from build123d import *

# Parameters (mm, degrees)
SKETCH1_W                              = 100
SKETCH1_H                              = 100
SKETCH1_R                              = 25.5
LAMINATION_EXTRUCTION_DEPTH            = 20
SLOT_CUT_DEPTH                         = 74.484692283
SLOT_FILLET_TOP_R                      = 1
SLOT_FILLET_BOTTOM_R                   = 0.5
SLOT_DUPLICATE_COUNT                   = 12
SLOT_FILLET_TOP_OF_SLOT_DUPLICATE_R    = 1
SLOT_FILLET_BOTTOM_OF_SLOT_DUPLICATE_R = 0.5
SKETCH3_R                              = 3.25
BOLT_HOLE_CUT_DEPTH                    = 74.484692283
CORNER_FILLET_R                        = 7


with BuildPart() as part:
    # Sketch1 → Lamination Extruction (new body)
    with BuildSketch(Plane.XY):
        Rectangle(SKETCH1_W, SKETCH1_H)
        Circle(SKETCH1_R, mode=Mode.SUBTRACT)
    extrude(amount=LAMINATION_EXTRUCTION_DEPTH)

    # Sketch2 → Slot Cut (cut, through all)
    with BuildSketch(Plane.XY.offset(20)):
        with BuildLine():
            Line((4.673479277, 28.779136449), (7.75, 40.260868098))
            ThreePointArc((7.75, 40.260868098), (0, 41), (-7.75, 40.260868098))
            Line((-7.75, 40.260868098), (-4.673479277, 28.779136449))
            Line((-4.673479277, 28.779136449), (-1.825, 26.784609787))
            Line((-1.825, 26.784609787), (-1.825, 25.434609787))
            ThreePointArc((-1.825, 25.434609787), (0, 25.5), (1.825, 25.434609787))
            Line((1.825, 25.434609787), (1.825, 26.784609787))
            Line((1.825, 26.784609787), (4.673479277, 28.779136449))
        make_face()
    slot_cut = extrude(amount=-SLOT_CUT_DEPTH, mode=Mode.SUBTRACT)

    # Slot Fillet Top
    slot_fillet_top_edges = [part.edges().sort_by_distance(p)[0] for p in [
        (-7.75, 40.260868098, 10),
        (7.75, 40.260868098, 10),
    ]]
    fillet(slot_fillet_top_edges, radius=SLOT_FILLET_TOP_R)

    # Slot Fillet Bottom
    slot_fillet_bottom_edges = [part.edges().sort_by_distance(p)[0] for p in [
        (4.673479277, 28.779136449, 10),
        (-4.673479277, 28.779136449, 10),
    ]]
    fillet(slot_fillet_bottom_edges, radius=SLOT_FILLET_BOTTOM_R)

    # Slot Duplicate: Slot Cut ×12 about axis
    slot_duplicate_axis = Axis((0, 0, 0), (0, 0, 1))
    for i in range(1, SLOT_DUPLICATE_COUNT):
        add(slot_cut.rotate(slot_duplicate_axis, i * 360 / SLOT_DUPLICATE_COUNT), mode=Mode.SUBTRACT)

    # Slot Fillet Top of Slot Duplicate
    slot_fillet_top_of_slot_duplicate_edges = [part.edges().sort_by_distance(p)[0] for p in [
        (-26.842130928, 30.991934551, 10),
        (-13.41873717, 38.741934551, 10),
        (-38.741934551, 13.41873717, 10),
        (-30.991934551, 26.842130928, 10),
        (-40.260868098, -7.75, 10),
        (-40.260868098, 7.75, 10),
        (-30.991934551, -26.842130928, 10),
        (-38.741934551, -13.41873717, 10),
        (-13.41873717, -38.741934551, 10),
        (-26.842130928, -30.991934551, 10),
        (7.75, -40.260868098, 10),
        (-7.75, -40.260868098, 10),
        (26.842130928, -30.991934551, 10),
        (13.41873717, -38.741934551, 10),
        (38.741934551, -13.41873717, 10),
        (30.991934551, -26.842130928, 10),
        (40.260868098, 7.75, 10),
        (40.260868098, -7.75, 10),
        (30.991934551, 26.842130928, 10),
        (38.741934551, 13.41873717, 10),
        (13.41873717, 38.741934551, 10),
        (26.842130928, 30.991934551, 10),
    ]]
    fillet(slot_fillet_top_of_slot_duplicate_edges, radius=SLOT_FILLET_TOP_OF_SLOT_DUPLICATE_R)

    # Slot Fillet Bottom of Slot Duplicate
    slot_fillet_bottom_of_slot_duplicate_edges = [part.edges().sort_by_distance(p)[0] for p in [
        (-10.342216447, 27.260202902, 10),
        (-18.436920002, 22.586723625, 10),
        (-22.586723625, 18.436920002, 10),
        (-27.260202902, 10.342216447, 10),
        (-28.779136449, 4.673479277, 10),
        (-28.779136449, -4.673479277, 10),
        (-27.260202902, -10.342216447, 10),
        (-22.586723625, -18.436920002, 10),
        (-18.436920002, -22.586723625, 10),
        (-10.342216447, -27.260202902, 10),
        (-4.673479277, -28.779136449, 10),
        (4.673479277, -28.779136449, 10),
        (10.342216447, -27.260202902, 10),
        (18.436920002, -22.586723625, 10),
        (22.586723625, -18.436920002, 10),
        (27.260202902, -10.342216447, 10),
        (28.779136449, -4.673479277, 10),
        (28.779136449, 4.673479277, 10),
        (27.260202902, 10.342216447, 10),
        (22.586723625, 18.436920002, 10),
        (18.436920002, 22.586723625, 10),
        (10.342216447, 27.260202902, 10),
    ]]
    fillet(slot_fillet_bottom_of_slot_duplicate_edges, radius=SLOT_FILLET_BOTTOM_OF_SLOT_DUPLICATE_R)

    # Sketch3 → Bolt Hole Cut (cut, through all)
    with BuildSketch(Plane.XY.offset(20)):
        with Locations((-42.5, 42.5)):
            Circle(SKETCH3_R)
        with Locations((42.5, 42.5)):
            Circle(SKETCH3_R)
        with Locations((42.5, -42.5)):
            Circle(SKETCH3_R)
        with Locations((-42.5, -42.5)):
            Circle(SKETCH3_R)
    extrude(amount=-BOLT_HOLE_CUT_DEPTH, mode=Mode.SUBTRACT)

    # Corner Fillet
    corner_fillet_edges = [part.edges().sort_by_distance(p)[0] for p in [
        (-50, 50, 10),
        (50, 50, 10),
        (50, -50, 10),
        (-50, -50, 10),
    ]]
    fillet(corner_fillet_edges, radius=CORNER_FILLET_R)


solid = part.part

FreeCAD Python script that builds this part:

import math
import FreeCAD as App
import Part
import Sketcher
from FreeCAD import Vector
Q = App.Units.Quantity


def edges_at(feature, points):
    """Names of the edges that pass closest to the given points."""
    edges = feature.Shape.Edges
    near = lambda p: min(range(len(edges)), key=lambda i: edges[i].distToShape(Part.Vertex(*p))[0])
    return sorted({f"Edge{near(p) + 1}" for p in points})

doc = App.newDocument("Part")
body = doc.addObject("PartDesign::Body", "Body")

# Sketch on XY plane
sketch1 = body.newObject("Sketcher::SketchObject", "Sketch")
sketch1.AttachmentSupport = (doc.getObject("XY_Plane"), [""])
sketch1.MapMode = "FlatFace"
sketch1.addGeometry([
    Part.LineSegment(Vector(-50, 50, 0), Vector(-50, -50, 0)),  # 0
    Part.LineSegment(Vector(-50, -50, 0), Vector(50, -50, 0)),  # 1
    Part.LineSegment(Vector(50, -50, 0), Vector(50, 50, 0)),  # 2
    Part.LineSegment(Vector(50, 50, 0), Vector(-50, 50, 0)),  # 3
    Part.Circle(Vector(0, 0, 0), Vector(0, 0, 1), 26),  # 4
], False)
sketch1.addConstraint([
    Sketcher.Constraint("Coincident", 0, 2, 1, 1),
    Sketcher.Constraint("Coincident", 1, 2, 2, 1),
    Sketcher.Constraint("Coincident", 2, 2, 3, 1),
    Sketcher.Constraint("Coincident", 3, 2, 0, 1),
    Sketcher.Constraint("Vertical", 0),
    Sketcher.Constraint("Horizontal", 1),
    Sketcher.Constraint("Vertical", 2),
    Sketcher.Constraint("Horizontal", 3),
    Sketcher.Constraint("Coincident", 4, 3, -1, 1),
    Sketcher.Constraint("Symmetric", 0, 2, 2, 2, -1, 1),
    Sketcher.Constraint("Equal", 3, 0),
    Sketcher.Constraint("Diameter", 4, Q("51 mm")),
    Sketcher.Constraint("DistanceX", 1, 1, 1, 2, Q("100 mm")),
])
pad1 = body.newObject("PartDesign::Pad", "Pad")
pad1.Profile = sketch1
pad1.Length = 20

# Sketch on XY plane
sketch2 = body.newObject("Sketcher::SketchObject", "Sketch001")
sketch2.AttachmentSupport = (doc.getObject("XY_Plane"), [""])
sketch2.MapMode = "FlatFace"
sketch2.AttachmentOffset = App.Placement(Vector(0, 0, 20), App.Rotation())
sketch2.addGeometry([
    Part.LineSegment(Vector(4.7, 28.8, 0), Vector(7.8, 40.3, 0)),  # 0
    Part.ArcOfCircle(Part.Circle(Vector(0, 0, 0), Vector(0, 0, 1), 41), math.radians(79), math.radians(101)),  # 1
    Part.LineSegment(Vector(-7.8, 40.3, 0), Vector(-4.7, 28.8, 0)),  # 2
    Part.LineSegment(Vector(-4.7, 28.8, 0), Vector(-1.8, 26.8, 0)),  # 3
    Part.LineSegment(Vector(-1.8, 26.8, 0), Vector(-1.8, 25.4, 0)),  # 4
    Part.ArcOfCircle(Part.Circle(Vector(0, 0, 0), Vector(0, 0, 1), 25.5), math.radians(85.9), math.radians(94.1)),  # 5
    Part.LineSegment(Vector(1.8, 25.4, 0), Vector(1.8, 26.8, 0)),  # 6
    Part.LineSegment(Vector(1.8, 26.8, 0), Vector(4.7, 28.8, 0)),  # 7
], False)
sketch2.addConstraint([
    Sketcher.Constraint("Coincident", 0, 2, 1, 1),
    Sketcher.Constraint("Coincident", 1, 2, 2, 1),
    Sketcher.Constraint("Coincident", 2, 2, 3, 1),
    Sketcher.Constraint("Coincident", 3, 2, 4, 1),
    Sketcher.Constraint("Coincident", 4, 2, 5, 2),
    Sketcher.Constraint("Coincident", 5, 1, 6, 1),
    Sketcher.Constraint("Coincident", 6, 2, 7, 1),
    Sketcher.Constraint("Coincident", 7, 2, 0, 1),
    Sketcher.Constraint("Vertical", 4),
    Sketcher.Constraint("Vertical", 6),
    Sketcher.Constraint("Coincident", 1, 3, -1, 1),
    Sketcher.Constraint("Coincident", 5, 3, -1, 1),
    Sketcher.Constraint("Symmetric", 3, 2, 6, 2, -2),
    Sketcher.Constraint("Symmetric", 2, 2, 7, 2, -2),
    Sketcher.Constraint("Horizontal", 0, 2, 1, 2),
    Sketcher.Constraint("Radius", 1, Q("41 mm")),
    Sketcher.Constraint("Radius", 5, Q("25.5 mm")),
    Sketcher.Constraint("Angle", 0, Q("75 deg")),
    Sketcher.Constraint("Angle", 3, Q("-35 deg")),
    Sketcher.Constraint("DistanceY", 4, 2, 4, 1, Q("1.35 mm")),
    Sketcher.Constraint("DistanceX", 1, 2, 0, 2, Q("15.5 mm")),
    Sketcher.Constraint("DistanceX", 4, 2, 5, 1, Q("3.65 mm")),
])
pocket1 = body.newObject("PartDesign::Pocket", "Pocket")
pocket1.Profile = sketch2
pocket1.Type = "ThroughAll"
doc.recompute()

fillet = body.newObject("PartDesign::Fillet", "Fillet")
fillet.Base = (pocket1, edges_at(pocket1, [(-7.75, 40.261, 10), (7.75, 40.261, 10)]))
fillet.Radius = 1
doc.recompute()

fillet2 = body.newObject("PartDesign::Fillet", "Fillet001")
fillet2.Base = (fillet, edges_at(fillet, [(4.673, 28.779, 10), (-4.673, 28.779, 10)]))
fillet2.Radius = 0.5
doc.recompute()

polarpattern = body.newObject("PartDesign::PolarPattern", "PolarPattern")
polarpattern.Originals = [pocket1]
polarpattern.Axis = (doc.getObject("Z_Axis"), [""])
polarpattern.Angle = 360
polarpattern.Occurrences = 12
body.Tip = polarpattern
doc.recompute()

fillet3 = body.newObject("PartDesign::Fillet", "Fillet002")
fillet3.Base = (polarpattern, edges_at(polarpattern, [
    (-26.842, 30.992, 10),
    (-13.419, 38.742, 10),
    (-38.742, 13.419, 10),
    (-30.992, 26.842, 10),
    (-40.261, -7.75, 10),
    (-40.261, 7.75, 10),
    (-30.992, -26.842, 10),
    (-38.742, -13.419, 10),
    (-13.419, -38.742, 10),
    (-26.842, -30.992, 10),
    (7.75, -40.261, 10),
    (-7.75, -40.261, 10),
    (26.842, -30.992, 10),
    (13.419, -38.742, 10),
    (38.742, -13.419, 10),
    (30.992, -26.842, 10),
    (40.261, 7.75, 10),
    (40.261, -7.75, 10),
    (30.992, 26.842, 10),
    (38.742, 13.419, 10),
    (13.419, 38.742, 10),
    (26.842, 30.992, 10),
]))
fillet3.Radius = 1
doc.recompute()

fillet4 = body.newObject("PartDesign::Fillet", "Fillet003")
fillet4.Base = (fillet3, edges_at(fillet3, [
    (-10.342, 27.26, 10),
    (-18.437, 22.587, 10),
    (-22.587, 18.437, 10),
    (-27.26, 10.342, 10),
    (-28.779, 4.673, 10),
    (-28.779, -4.673, 10),
    (-27.26, -10.342, 10),
    (-22.587, -18.437, 10),
    (-18.437, -22.587, 10),
    (-10.342, -27.26, 10),
    (-4.673, -28.779, 10),
    (4.673, -28.779, 10),
    (10.342, -27.26, 10),
    (18.437, -22.587, 10),
    (22.587, -18.437, 10),
    (27.26, -10.342, 10),
    (28.779, -4.673, 10),
    (28.779, 4.673, 10),
    (27.26, 10.342, 10),
    (22.587, 18.437, 10),
    (18.437, 22.587, 10),
    (10.342, 27.26, 10),
]))
fillet4.Radius = 0.5

# Sketch on XY plane
sketch3 = body.newObject("Sketcher::SketchObject", "Sketch002")
sketch3.AttachmentSupport = (doc.getObject("XY_Plane"), [""])
sketch3.MapMode = "FlatFace"
sketch3.AttachmentOffset = App.Placement(Vector(0, 0, 20), App.Rotation())
sketch3.addGeometry([
    Part.Circle(Vector(-42.5, 42.5, 0), Vector(0, 0, 1), 3.2),
    Part.Circle(Vector(42.5, 42.5, 0), Vector(0, 0, 1), 3.2),
    Part.Circle(Vector(42.5, -42.5, 0), Vector(0, 0, 1), 3.2),
    Part.Circle(Vector(-42.5, -42.5, 0), Vector(0, 0, 1), 3.2),
], False)
sketch3.addConstraint([
    Sketcher.Constraint("Equal", 0, 1),
    Sketcher.Constraint("Equal", 1, 2),
    Sketcher.Constraint("Equal", 2, 3),
    Sketcher.Constraint("Symmetric", 0, 3, 2, 3, -1, 1),
    Sketcher.Constraint("Symmetric", 1, 3, 3, 3, -1, 1),
    Sketcher.Constraint("Symmetric", 0, 3, 1, 3, -2),
    Sketcher.Constraint("Diameter", 0, Q("6.5 mm")),
    Sketcher.Constraint("DistanceX", 0, 3, 1, 3, Q("85 mm")),
    Sketcher.Constraint("DistanceY", 2, 3, 1, 3, Q("85 mm")),
])
pocket2 = body.newObject("PartDesign::Pocket", "Pocket001")
pocket2.Profile = sketch3
pocket2.Type = "ThroughAll"
doc.recompute()

fillet5 = body.newObject("PartDesign::Fillet", "Fillet004")
fillet5.Base = (pocket2, edges_at(pocket2, [
    (-50, 50, 10),
    (50, 50, 10),
    (50, -50, 10),
    (-50, -50, 10),
]))
fillet5.Radius = 7

doc.recompute()
